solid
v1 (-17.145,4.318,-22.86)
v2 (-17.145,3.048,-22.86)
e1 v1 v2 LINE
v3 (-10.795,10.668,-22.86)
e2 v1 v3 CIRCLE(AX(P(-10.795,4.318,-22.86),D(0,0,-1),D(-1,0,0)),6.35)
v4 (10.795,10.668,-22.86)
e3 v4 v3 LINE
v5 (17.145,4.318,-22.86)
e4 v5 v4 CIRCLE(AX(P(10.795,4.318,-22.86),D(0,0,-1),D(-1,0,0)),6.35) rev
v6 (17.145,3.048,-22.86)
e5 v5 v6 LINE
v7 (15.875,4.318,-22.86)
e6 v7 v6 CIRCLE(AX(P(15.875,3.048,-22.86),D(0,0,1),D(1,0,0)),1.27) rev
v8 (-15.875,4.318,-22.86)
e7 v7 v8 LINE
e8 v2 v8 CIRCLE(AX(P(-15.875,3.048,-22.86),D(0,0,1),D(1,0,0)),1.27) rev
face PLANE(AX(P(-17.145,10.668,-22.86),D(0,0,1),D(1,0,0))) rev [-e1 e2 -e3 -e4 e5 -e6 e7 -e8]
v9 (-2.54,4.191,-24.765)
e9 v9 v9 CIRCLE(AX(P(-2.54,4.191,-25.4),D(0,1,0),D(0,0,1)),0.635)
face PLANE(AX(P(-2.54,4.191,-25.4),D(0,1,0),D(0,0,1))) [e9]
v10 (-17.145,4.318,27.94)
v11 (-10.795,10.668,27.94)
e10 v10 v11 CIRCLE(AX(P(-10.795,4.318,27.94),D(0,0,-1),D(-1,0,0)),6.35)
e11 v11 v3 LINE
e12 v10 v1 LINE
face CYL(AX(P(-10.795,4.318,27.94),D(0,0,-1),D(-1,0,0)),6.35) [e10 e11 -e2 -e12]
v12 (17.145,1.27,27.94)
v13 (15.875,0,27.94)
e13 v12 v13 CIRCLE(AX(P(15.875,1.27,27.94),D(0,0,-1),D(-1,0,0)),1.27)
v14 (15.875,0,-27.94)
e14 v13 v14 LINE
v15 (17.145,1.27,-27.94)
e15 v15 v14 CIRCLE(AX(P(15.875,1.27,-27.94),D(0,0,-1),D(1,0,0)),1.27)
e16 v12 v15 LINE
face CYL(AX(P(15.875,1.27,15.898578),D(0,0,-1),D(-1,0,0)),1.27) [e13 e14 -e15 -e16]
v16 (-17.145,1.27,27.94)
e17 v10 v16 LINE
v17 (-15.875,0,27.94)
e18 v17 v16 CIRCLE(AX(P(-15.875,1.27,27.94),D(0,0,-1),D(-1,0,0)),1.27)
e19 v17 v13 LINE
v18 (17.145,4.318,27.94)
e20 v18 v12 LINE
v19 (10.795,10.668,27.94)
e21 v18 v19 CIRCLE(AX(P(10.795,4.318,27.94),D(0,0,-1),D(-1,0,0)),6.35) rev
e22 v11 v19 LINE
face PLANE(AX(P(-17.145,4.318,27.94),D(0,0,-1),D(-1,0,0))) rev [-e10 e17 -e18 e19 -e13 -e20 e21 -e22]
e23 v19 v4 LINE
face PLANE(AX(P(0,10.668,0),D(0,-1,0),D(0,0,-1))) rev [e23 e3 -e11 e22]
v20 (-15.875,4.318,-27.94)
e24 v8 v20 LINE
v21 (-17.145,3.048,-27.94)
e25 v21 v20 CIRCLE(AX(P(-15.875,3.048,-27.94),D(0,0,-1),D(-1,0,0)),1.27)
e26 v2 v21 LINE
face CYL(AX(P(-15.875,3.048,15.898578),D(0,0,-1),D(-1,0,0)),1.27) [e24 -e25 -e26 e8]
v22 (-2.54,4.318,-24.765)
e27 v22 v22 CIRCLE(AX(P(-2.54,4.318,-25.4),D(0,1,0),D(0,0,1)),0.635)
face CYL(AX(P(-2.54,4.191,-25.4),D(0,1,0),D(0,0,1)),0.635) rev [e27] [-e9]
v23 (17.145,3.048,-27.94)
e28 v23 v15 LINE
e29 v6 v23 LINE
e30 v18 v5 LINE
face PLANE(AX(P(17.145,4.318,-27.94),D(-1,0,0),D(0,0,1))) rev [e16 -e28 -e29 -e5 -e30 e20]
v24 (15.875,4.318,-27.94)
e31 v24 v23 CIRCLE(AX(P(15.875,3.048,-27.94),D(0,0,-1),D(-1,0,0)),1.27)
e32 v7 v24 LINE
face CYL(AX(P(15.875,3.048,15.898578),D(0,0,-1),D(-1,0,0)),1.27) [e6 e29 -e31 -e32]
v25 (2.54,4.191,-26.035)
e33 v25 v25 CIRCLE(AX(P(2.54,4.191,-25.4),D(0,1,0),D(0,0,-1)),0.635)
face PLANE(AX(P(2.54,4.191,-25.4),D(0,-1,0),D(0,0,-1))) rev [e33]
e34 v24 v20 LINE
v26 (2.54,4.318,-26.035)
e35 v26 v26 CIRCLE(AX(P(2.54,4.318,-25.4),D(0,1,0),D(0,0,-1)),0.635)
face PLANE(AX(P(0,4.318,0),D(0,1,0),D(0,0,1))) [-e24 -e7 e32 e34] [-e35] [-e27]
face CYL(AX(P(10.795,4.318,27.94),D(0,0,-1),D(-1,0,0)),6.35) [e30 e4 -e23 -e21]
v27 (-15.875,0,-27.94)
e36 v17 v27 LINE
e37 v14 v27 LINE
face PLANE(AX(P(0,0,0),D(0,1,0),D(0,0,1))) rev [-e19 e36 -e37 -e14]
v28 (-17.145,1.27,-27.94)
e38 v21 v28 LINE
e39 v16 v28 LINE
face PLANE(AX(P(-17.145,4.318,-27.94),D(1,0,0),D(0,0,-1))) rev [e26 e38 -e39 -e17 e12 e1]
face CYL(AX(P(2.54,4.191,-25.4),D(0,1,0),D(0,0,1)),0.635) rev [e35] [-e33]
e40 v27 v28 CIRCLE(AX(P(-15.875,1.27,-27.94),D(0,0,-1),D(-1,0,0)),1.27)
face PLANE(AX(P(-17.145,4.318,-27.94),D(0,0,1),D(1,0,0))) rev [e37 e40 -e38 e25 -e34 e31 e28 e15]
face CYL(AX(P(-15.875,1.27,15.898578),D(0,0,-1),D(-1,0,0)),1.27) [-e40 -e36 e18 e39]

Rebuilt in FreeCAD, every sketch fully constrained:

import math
import FreeCAD as App
import Part
import Sketcher

V = App.Vector
Q = App.Units.Quantity

doc = App.newDocument("Part")
body = doc.addObject("PartDesign::Body", "Body")

# Sketch on XZ plane
sketch1 = body.newObject("Sketcher::SketchObject", "Sketch")
sketch1.AttachmentSupport = (doc.getObject("XZ_Plane"), [""])
sketch1.MapMode = "FlatFace"
sketch1.addGeometry(Part.LineSegment(V(-17.145, -27.94, 0), V(-17.145, 27.94, 0)), False)
sketch1.addGeometry(Part.LineSegment(V(-17.145, 27.94, 0), V(17.145, 27.94, 0)), False)
sketch1.addGeometry(Part.LineSegment(V(17.145, 27.94, 0), V(17.145, -27.94, 0)), False)
sketch1.addGeometry(Part.LineSegment(V(17.145, -27.94, 0), V(-17.145, -27.94, 0)), False)
sketch1.addConstraint(Sketcher.Constraint("Coincident", 0, 2, 1, 1))
sketch1.addConstraint(Sketcher.Constraint("Coincident", 1, 2, 2, 1))
sketch1.addConstraint(Sketcher.Constraint("Coincident", 2, 2, 3, 1))
sketch1.addConstraint(Sketcher.Constraint("Coincident", 3, 2, 0, 1))
sketch1.addConstraint(Sketcher.Constraint("Vertical", 0))
sketch1.addConstraint(Sketcher.Constraint("Horizontal", 1))
sketch1.addConstraint(Sketcher.Constraint("Vertical", 2))
sketch1.addConstraint(Sketcher.Constraint("Horizontal", 3))
sketch1.addConstraint(Sketcher.Constraint("Symmetric", 0, 2, 2, 2, -1, 1))
sketch1.addConstraint(Sketcher.Constraint("DistanceY", 0, 1, 0, 2, Q("2.2 in")))
sketch1.addConstraint(Sketcher.Constraint("DistanceX", 1, 1, 1, 2, Q("1.35 in")))
pad1 = body.newObject("PartDesign::Pad", "Pad")
pad1.Profile = sketch1
pad1.Length = Q("0.17 in")
pad1.Reversed = True

# Sketch on XZ plane
sketch2 = body.newObject("Sketcher::SketchObject", "Sketch001")
sketch2.AttachmentSupport = (doc.getObject("XZ_Plane"), [""])
sketch2.MapMode = "FlatFace"
sketch2.AttachmentOffset = App.Placement(V(0, 0, -0.17 * 25.4), App.Rotation())
sketch2.addGeometry(Part.LineSegment(V(-17.145, -22.86, 0), V(-17.145, 27.94, 0)), False)
sketch2.addGeometry(Part.LineSegment(V(-17.145, 27.94, 0), V(17.145, 27.94, 0)), False)
sketch2.addGeometry(Part.LineSegment(V(17.145, 27.94, 0), V(17.145, -22.86, 0)), False)
sketch2.addGeometry(Part.LineSegment(V(17.145, -22.86, 0), V(-17.145, -22.86, 0)), False)
sketch2.addConstraint(Sketcher.Constraint("Coincident", 0, 2, 1, 1))
sketch2.addConstraint(Sketcher.Constraint("Coincident", 1, 2, 2, 1))
sketch2.addConstraint(Sketcher.Constraint("Coincident", 2, 2, 3, 1))
sketch2.addConstraint(Sketcher.Constraint("Coincident", 3, 2, 0, 1))
sketch2.addConstraint(Sketcher.Constraint("Vertical", 0))
sketch2.addConstraint(Sketcher.Constraint("Horizontal", 1))
sketch2.addConstraint(Sketcher.Constraint("Vertical", 2))
sketch2.addConstraint(Sketcher.Constraint("Horizontal", 3))
sketch2.addConstraint(Sketcher.Constraint("DistanceY", 0, 1, 0, 2, Q("2 in")))
sketch2.addConstraint(Sketcher.Constraint("DistanceX", 1, 1, 1, 2, Q("1.35 in")))
sketch2.addConstraint(Sketcher.Constraint("DistanceY", -1, 1, 0, 2, Q("1.1 in")))
sketch2.addConstraint(Sketcher.Constraint("DistanceX", 0, 2, -1, 1, Q("0.675 in")))
pad2 = body.newObject("PartDesign::Pad", "Pad001")
pad2.Profile = sketch2
pad2.Length = Q("0.25 in")
pad2.Reversed = True

# Sketch on XY plane
sketch3 = body.newObject("Sketcher::SketchObject", "Sketch002")
sketch3.AttachmentSupport = (doc.getObject("XY_Plane"), [""])
sketch3.MapMode = "FlatFace"
sketch3.AttachmentOffset = App.Placement(V(0, 0, -1.1 * 25.4), App.Rotation())
sketch3.addGeometry(Part.LineSegment(V(24.787, 18.31, 0), V(24.787, -7.642, 0)), False)
sketch3.addGeometry(Part.LineSegment(V(24.787, -7.642, 0), V(-24.787, -7.642, 0)), False)
sketch3.addGeometry(Part.LineSegment(V(-24.787, -7.642, 0), V(-24.787, 18.31, 0)), False)
sketch3.addGeometry(Part.LineSegment(V(-24.787, 18.31, 0), V(24.787, 18.31, 0)), False)
sketch3.addGeometry(Part.LineSegment(V(-15.875, 0, 0), V(15.875, 0, 0)), False)
sketch3.addGeometry(Part.ArcOfCircle(Part.Circle(V(15.875, 1.27, 0), V(0, 0, 1), 1.27), math.radians(-90), math.radians(0)), False)
sketch3.addGeometry(Part.LineSegment(V(17.145, 1.27, 0), V(17.145, 3.048, 0)), False)
sketch3.addGeometry(Part.ArcOfCircle(Part.Circle(V(15.875, 3.048, 0), V(0, 0, 1), 1.27), math.radians(0), math.radians(90)), False)
sketch3.addGeometry(Part.LineSegment(V(15.875, 4.318, 0), V(-15.875, 4.318, 0)), False)
sketch3.addGeometry(Part.ArcOfCircle(Part.Circle(V(-15.875, 3.048, 0), V(0, 0, 1), 1.27), math.radians(90), math.radians(180)), False)
sketch3.addGeometry(Part.LineSegment(V(-17.145, 3.048, 0), V(-17.145, 1.27, 0)), False)
sketch3.addGeometry(Part.ArcOfCircle(Part.Circle(V(-15.875, 1.27, 0), V(0, 0, 1), 1.27), math.radians(180), math.radians(270)), False)
sketch3.addConstraint(Sketcher.Constraint("Coincident", 0, 2, 1, 1))
sketch3.addConstraint(Sketcher.Constraint("Coincident", 1, 2, 2, 1))
sketch3.addConstraint(Sketcher.Constraint("Coincident", 2, 2, 3, 1))
sketch3.addConstraint(Sketcher.Constraint("Coincident", 3, 2, 0, 1))
sketch3.addConstraint(Sketcher.Constraint("Tangent", 4, 2, 5, 1))
sketch3.addConstraint(Sketcher.Constraint("Tangent", 5, 2, 6, 1))
sketch3.addConstraint(Sketcher.Constraint("Tangent", 6, 2, 7, 1))
sketch3.addConstraint(Sketcher.Constraint("Tangent", 7, 2, 8, 1))
sketch3.addConstraint(Sketcher.Constraint("Tangent", 8, 2, 9, 1))
sketch3.addConstraint(Sketcher.Constraint("Tangent", 9, 2, 10, 1))
sketch3.addConstraint(Sketcher.Constraint("Tangent", 10, 2, 11, 1))
sketch3.addConstraint(Sketcher.Constraint("Tangent", 11, 2, 4, 1))
sketch3.addConstraint(Sketcher.Constraint("Vertical", 0))
sketch3.addConstraint(Sketcher.Constraint("Horizontal", 1))
sketch3.addConstraint(Sketcher.Constraint("Vertical", 2))
sketch3.addConstraint(Sketcher.Constraint("Horizontal", 3))
sketch3.addConstraint(Sketcher.Constraint("Horizontal", 4))
sketch3.addConstraint(Sketcher.Constraint("Vertical", 6))
sketch3.addConstraint(Sketcher.Constraint("Horizontal", 8))
sketch3.addConstraint(Sketcher.Constraint("Vertical", 10))
sketch3.addConstraint(Sketcher.Constraint("Equal", 5, 7))
sketch3.addConstraint(Sketcher.Constraint("Equal", 7, 9))
sketch3.addConstraint(Sketcher.Constraint("Equal", 9, 11))
sketch3.addConstraint(Sketcher.Constraint("Symmetric", 4, 2, 11, 2, -1, 1))
sketch3.addConstraint(Sketcher.Constraint("Radius", 5, Q("0.05 in")))
sketch3.addConstraint(Sketcher.Constraint("DistanceX", 4, 1, 4, 2, Q("1.25 in")))
sketch3.addConstraint(Sketcher.Constraint("DistanceY", 6, 1, 6, 2, Q("0.07 in")))
sketch3.addConstraint(Sketcher.Constraint("DistanceX", 1, 2, 1, 1, Q("49.574 mm")))
sketch3.addConstraint(Sketcher.Constraint("DistanceY", 0, 2, 0, 1, Q("25.952 mm")))
sketch3.addConstraint(Sketcher.Constraint("DistanceX", -1, 1, 0, 2, Q("24.787 mm")))
sketch3.addConstraint(Sketcher.Constraint("DistanceY", 0, 2, -1, 1, Q("7.642 mm")))
pocket1 = body.newObject("PartDesign::Pocket", "Pocket")
pocket1.Profile = sketch3
pocket1.Length = Q("0.2 in")
pocket1.Reversed = True

# Sketch on XY plane
sketch4 = body.newObject("Sketcher::SketchObject", "Sketch003")
sketch4.AttachmentSupport = (doc.getObject("XY_Plane"), [""])
sketch4.MapMode = "FlatFace"
sketch4.AttachmentOffset = App.Placement(V(0, 0, -0.9 * 25.4), App.Rotation())
sketch4.addGeometry(Part.LineSegment(V(17.145, 10.668, 0), V(17.145, 4.318, 0)), False)
sketch4.addGeometry(Part.ArcOfCircle(Part.Circle(V(10.795, 4.318, 0), V(0, 0, 1), 6.35), math.radians(0), math.radians(90)), False)
sketch4.addGeometry(Part.LineSegment(V(10.795, 10.668, 0), V(17.145, 10.668, 0)), False)
sketch4.addGeometry(Part.LineSegment(V(-17.145, 10.668, 0), V(-10.795, 10.668, 0)), False)
sketch4.addGeometry(Part.ArcOfCircle(Part.Circle(V(-10.795, 4.318, 0), V(0, 0, 1), 6.35), math.radians(90), math.radians(180)), False)
sketch4.addGeometry(Part.LineSegment(V(-17.145, 4.318, 0), V(-17.145, 10.668, 0)), False)
sketch4.addGeometry(Part.LineSegment(V(17.145, 1.27, 0), V(17.145, 0, 0)), False)
sketch4.addGeometry(Part.LineSegment(V(17.145, 0, 0), V(15.875, 0, 0)), False)
sketch4.addGeometry(Part.ArcOfCircle(Part.Circle(V(15.875, 1.27, 0), V(0, 0, 1), 1.27), math.radians(-90), math.radians(0)), False)
sketch4.addGeometry(Part.LineSegment(V(-17.145, 0, 0), V(-17.145, 1.27, 0)), False)
sketch4.addGeometry(Part.ArcOfCircle(Part.Circle(V(-15.875, 1.27, 0), V(0, 0, 1), 1.27), math.radians(180), math.radians(270)), False)
sketch4.addGeometry(Part.LineSegment(V(-15.875, 0, 0), V(-17.145, 0, 0)), False)
sketch4.addConstraint(Sketcher.Constraint("Tangent", 0, 2, 1, 1))
sketch4.addConstraint(Sketcher.Constraint("Tangent", 1, 2, 2, 1))
sketch4.addConstraint(Sketcher.Constraint("Coincident", 2, 2, 0, 1))
sketch4.addConstraint(Sketcher.Constraint("Tangent", 3, 2, 4, 1))
sketch4.addConstraint(Sketcher.Constraint("Tangent", 4, 2, 5, 1))
sketch4.addConstraint(Sketcher.Constraint("Coincident", 5, 2, 3, 1))
sketch4.addConstraint(Sketcher.Constraint("Coincident", 6, 2, 7, 1))
sketch4.addConstraint(Sketcher.Constraint("Tangent", 7, 2, 8, 1))
sketch4.addConstraint(Sketcher.Constraint("Tangent", 8, 2, 6, 1))
sketch4.addConstraint(Sketcher.Constraint("Tangent", 9, 2, 10, 1))
sketch4.addConstraint(Sketcher.Constraint("Tangent", 10, 2, 11, 1))
sketch4.addConstraint(Sketcher.Constraint("Coincident", 11, 2, 9, 1))
sketch4.addConstraint(Sketcher.Constraint("Vertical", 0))
sketch4.addConstraint(Sketcher.Constraint("Horizontal", 2))
sketch4.addConstraint(Sketcher.Constraint("Horizontal", 3))
sketch4.addConstraint(Sketcher.Constraint("Vertical", 5))
sketch4.addConstraint(Sketcher.Constraint("Vertical", 6))
sketch4.addConstraint(Sketcher.Constraint("Horizontal", 7))
sketch4.addConstraint(Sketcher.Constraint("Vertical", 9))
sketch4.addConstraint(Sketcher.Constraint("Horizontal", 11))
sketch4.addConstraint(Sketcher.Constraint("Equal", 1, 4))
sketch4.addConstraint(Sketcher.Constraint("Equal", 8, 10))
sketch4.addConstraint(Sketcher.Constraint("Symmetric", 7, 2, 10, 2, -1, 1))
sketch4.addConstraint(Sketcher.Constraint("Symmetric", 1, 3, 4, 3, -2))
sketch4.addConstraint(Sketcher.Constraint("PointOnObject", 6, 2, -1))
sketch4.addConstraint(Sketcher.Constraint("Vertical", 2, 2, 6, 2))
sketch4.addConstraint(Sketcher.Constraint("Radius", 1, Q("0.25 in")))
sketch4.addConstraint(Sketcher.Constraint("Radius", 8, Q("0.05 in")))
sketch4.addConstraint(Sketcher.Constraint("DistanceX", 4, 3, 0, 2, Q("1.1 in")))
sketch4.addConstraint(Sketcher.Constraint("DistanceY", -1, 1, 1, 3, Q("0.17 in")))
pocket2 = body.newObject("PartDesign::Pocket", "Pocket001")
pocket2.Profile = sketch4
pocket2.Type = "ThroughAll"
pocket2.Reversed = True

# Sketch on XZ plane
sketch5 = body.newObject("Sketcher::SketchObject", "Sketch004")
sketch5.AttachmentSupport = (doc.getObject("XZ_Plane"), [""])
sketch5.MapMode = "FlatFace"
sketch5.AttachmentOffset = App.Placement(V(0, 0, -0.17 * 25.4), App.Rotation())
sketch5.addGeometry(Part.Circle(V(-2.54, -25.4, 0), V(0, 0, 1), 0.635), False)
sketch5.addGeometry(Part.Circle(V(2.54, -25.4, 0), V(0, 0, 1), 0.635), False)
sketch5.addConstraint(Sketcher.Constraint("Equal", 0, 1))
sketch5.addConstraint(Sketcher.Constraint("Symmetric", 0, 3, 1, 3, -2))
sketch5.addConstraint(Sketcher.Constraint("Diameter", 0, Q("0.05 in")))
sketch5.addConstraint(Sketcher.Constraint("DistanceY", 0, 3, -1, 1, Q("1 in")))
sketch5.addConstraint(Sketcher.Constraint("DistanceX", 0, 3, -1, 1, Q("0.1 in")))
pocket3 = body.newObject("PartDesign::Pocket", "Pocket002")
pocket3.Profile = sketch5
pocket3.Length = Q("0.005 in")
pocket3.Reversed = True

doc.recompute()
